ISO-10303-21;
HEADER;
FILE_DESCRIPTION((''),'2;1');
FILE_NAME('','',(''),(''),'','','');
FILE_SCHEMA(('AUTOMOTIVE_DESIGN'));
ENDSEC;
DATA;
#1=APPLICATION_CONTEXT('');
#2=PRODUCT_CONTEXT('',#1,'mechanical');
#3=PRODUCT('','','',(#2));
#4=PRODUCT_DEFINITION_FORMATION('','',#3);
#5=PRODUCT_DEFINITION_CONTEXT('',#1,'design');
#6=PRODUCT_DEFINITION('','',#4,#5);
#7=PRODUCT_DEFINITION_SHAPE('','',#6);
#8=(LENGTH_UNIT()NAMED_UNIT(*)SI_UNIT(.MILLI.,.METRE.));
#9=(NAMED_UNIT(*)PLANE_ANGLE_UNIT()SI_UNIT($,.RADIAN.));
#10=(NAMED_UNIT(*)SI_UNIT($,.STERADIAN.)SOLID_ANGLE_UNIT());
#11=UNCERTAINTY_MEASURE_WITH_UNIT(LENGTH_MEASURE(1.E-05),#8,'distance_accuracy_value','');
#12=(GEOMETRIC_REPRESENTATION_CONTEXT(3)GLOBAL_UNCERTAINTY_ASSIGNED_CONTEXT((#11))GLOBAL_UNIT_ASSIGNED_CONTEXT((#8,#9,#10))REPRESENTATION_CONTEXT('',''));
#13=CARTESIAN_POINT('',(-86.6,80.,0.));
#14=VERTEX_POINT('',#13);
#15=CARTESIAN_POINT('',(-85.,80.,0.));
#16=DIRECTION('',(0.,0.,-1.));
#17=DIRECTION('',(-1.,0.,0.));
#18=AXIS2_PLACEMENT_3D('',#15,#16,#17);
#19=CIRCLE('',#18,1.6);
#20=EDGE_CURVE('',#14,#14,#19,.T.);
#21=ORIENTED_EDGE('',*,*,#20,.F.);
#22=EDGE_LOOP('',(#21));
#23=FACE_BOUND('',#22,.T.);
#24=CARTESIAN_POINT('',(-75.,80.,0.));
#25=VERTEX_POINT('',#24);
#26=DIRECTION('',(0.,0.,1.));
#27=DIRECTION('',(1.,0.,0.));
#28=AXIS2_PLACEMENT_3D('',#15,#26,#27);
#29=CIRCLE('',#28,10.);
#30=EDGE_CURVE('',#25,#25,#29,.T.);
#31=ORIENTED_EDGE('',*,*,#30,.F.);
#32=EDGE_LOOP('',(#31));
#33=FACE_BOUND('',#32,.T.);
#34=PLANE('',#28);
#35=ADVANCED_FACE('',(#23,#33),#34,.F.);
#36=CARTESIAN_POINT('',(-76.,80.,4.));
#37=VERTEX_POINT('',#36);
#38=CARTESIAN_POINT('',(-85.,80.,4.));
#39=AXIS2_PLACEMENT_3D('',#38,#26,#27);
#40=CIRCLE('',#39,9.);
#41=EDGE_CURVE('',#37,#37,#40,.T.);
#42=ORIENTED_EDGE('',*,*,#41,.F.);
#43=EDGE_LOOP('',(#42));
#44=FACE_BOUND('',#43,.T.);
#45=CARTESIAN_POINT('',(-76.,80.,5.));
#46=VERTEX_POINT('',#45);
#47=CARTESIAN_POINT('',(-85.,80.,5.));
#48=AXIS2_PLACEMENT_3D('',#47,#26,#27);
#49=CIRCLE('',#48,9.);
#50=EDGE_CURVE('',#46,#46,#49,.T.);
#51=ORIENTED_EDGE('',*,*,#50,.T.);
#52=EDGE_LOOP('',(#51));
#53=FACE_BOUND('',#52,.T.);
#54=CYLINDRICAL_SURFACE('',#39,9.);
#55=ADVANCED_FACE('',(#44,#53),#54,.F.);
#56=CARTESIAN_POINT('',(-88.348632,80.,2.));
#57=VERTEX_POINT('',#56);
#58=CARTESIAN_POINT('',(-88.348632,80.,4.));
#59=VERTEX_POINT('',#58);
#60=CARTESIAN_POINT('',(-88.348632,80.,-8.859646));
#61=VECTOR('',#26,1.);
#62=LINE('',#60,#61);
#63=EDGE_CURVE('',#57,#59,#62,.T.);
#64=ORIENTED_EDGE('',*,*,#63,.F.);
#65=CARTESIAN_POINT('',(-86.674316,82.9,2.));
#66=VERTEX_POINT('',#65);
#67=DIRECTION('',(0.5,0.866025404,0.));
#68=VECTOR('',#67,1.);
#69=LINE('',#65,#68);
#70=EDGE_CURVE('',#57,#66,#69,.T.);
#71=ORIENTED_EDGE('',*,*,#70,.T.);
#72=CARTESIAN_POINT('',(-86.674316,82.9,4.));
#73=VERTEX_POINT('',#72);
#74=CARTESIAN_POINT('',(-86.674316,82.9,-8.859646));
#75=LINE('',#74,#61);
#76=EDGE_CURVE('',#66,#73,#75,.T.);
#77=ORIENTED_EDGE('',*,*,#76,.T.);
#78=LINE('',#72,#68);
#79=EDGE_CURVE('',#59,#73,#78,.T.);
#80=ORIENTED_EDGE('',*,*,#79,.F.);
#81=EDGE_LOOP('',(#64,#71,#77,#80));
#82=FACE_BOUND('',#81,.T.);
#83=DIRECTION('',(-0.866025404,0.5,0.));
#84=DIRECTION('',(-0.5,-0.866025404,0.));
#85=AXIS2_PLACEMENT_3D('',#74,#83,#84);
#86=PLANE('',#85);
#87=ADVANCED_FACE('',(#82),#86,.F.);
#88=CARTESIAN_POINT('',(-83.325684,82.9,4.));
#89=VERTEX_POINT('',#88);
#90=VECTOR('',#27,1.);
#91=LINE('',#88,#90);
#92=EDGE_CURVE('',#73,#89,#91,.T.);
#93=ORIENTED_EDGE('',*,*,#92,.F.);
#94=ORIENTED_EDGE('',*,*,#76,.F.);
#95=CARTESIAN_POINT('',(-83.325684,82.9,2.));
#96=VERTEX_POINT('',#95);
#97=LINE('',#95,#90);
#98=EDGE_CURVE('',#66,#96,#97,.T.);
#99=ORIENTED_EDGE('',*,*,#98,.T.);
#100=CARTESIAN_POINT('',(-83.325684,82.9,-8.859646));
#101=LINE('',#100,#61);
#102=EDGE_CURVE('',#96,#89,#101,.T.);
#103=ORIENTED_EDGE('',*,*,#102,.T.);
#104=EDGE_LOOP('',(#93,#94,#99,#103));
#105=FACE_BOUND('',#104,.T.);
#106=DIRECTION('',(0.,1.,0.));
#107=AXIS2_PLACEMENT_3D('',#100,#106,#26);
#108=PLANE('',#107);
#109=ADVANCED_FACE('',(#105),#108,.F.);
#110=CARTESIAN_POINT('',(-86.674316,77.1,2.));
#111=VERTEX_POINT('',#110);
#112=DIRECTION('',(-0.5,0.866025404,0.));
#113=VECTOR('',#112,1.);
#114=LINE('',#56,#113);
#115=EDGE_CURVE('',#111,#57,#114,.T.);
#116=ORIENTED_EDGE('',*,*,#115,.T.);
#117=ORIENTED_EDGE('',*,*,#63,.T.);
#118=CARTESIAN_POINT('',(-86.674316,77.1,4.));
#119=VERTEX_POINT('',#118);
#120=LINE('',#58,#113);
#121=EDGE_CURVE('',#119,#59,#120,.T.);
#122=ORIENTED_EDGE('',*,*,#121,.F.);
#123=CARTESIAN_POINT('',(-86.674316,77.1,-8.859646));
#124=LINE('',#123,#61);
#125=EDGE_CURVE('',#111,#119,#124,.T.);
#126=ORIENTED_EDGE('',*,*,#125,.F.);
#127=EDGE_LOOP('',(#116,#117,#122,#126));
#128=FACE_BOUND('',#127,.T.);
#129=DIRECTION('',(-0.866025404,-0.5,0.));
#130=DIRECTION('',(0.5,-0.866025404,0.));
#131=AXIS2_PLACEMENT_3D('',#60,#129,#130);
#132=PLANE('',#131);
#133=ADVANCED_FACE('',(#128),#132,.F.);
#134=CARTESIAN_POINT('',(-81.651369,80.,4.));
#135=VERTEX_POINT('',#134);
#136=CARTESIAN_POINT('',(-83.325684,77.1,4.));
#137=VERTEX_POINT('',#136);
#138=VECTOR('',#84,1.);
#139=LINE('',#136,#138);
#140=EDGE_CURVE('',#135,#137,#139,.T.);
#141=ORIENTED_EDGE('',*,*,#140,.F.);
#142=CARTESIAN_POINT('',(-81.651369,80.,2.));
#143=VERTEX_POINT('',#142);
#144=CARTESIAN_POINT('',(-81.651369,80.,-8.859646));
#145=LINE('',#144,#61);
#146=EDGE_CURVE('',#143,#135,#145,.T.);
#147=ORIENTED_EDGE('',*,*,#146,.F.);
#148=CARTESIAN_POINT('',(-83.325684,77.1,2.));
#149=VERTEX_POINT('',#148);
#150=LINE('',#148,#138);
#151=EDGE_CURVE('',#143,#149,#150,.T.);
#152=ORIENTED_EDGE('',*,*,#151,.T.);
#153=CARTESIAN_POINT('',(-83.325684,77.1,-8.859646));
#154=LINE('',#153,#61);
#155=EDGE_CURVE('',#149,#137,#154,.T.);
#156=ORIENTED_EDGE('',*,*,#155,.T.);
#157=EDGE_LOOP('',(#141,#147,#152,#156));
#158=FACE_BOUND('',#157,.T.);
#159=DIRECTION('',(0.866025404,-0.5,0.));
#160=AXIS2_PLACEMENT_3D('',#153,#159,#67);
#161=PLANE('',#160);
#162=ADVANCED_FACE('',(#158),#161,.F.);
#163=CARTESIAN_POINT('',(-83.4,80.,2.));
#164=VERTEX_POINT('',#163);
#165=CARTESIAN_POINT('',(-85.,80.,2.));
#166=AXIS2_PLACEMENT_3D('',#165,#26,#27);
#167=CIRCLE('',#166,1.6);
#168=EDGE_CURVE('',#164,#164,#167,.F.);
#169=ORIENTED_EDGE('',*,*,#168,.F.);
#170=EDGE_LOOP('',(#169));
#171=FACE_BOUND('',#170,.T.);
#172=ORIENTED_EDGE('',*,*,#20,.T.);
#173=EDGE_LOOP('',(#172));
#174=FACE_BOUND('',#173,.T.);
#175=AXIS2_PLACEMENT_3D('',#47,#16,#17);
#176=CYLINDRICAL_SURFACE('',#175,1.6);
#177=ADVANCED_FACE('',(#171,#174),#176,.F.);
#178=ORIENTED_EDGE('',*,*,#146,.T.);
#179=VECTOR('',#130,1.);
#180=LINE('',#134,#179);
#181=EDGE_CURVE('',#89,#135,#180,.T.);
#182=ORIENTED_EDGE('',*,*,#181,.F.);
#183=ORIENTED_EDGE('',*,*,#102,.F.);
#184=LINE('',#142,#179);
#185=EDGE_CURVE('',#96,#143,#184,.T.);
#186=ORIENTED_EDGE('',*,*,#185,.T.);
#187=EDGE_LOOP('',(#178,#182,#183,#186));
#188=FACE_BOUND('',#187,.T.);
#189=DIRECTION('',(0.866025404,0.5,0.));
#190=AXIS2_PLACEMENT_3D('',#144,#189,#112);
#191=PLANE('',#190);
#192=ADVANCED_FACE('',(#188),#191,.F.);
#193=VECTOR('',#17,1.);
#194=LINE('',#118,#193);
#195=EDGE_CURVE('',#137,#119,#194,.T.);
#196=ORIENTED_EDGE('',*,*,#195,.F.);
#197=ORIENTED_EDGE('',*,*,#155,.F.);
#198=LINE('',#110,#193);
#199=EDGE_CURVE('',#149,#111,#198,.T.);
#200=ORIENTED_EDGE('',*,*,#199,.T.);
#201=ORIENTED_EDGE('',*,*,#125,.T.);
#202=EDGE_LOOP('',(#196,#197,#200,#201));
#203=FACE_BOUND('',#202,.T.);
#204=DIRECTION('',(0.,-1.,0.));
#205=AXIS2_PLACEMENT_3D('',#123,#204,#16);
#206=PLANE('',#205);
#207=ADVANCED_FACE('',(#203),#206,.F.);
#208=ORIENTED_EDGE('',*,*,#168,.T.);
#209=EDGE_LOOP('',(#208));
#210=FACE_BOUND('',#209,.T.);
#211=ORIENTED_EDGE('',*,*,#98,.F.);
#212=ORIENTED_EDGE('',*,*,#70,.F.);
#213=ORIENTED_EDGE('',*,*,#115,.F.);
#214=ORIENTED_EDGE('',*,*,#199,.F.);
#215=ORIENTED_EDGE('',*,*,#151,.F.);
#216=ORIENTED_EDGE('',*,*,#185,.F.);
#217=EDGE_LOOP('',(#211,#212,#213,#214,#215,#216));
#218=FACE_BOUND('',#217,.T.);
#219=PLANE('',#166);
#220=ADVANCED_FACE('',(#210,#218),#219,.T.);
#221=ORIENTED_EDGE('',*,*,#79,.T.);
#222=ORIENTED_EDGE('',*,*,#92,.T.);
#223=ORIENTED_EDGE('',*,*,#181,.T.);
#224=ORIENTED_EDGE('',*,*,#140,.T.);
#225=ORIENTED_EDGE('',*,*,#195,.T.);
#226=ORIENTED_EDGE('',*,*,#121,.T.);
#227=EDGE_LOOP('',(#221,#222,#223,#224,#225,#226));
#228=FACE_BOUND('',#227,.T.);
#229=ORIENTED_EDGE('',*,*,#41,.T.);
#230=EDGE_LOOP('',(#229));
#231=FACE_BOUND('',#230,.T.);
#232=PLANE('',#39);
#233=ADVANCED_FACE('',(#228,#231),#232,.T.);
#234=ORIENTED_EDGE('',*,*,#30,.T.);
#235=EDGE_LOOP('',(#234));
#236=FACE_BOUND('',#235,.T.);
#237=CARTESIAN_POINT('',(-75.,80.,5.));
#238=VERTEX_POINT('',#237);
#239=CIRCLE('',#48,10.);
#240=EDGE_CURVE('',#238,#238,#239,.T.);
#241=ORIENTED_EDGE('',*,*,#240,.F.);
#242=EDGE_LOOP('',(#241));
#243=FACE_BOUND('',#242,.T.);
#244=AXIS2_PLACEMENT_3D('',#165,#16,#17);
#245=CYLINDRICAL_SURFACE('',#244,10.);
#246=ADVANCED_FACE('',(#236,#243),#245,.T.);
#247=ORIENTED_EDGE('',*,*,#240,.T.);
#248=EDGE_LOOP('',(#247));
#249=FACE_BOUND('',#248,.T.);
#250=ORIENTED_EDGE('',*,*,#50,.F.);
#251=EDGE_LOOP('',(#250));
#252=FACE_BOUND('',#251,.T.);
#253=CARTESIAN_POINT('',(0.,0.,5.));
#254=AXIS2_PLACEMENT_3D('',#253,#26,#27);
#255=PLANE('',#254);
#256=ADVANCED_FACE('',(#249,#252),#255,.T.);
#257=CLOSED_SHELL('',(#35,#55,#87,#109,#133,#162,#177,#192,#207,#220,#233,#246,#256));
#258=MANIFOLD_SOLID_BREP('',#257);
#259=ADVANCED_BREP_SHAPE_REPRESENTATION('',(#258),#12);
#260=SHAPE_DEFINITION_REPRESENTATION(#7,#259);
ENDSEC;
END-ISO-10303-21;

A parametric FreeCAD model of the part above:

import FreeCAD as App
import Part
import Sketcher
Q = App.Units.Quantity

doc = App.newDocument("Part")
body = doc.addObject("PartDesign::Body", "Body")

sketch1 = doc.addObject("Sketcher::SketchObject", "Sketch")
body.addObject(sketch1)
sketch1.AttachmentSupport = (doc.XY_Plane, [""])
sketch1.MapMode = "FlatFace"
sketch1.addGeometry([
    Part.Circle(App.Vector(-85, 80, 0), App.Vector(0, 0, 1), 10),
    Part.Circle(App.Vector(-85, 80, 0), App.Vector(0, 0, 1), 1.5),
], False)
sketch1.addConstraint([
    Sketcher.Constraint("Coincident", 1, 3, 0, 3),
    Sketcher.Constraint("Diameter", 0, Q("20 mm")),
    Sketcher.Constraint("Diameter", 1, Q("3 mm")),
    Sketcher.Constraint("DistanceX", 0, 3, -1, 1, Q("85 mm")),
    Sketcher.Constraint("DistanceY", -1, 1, 0, 3, Q("80 mm")),
])
pad1 = doc.addObject("PartDesign::Pad", "Pad")
body.addObject(pad1)
pad1.Profile = sketch1
pad1.Length = 2

sketch2 = doc.addObject("Sketcher::SketchObject", "Sketch001")
body.addObject(sketch2)
sketch2.AttachmentSupport = (doc.XY_Plane, [""])
sketch2.MapMode = "FlatFace"
sketch2.AttachmentOffset = App.Placement(App.Vector(0, 0, 2), App.Rotation())
sketch2.addGeometry(Part.Circle(App.Vector(-85, 80, 0), App.Vector(0, 0, 1), 10), False)
sketch2.addConstraint([
    Sketcher.Constraint("Diameter", 0, Q("20 mm")),
    Sketcher.Constraint("DistanceX", 0, 3, -1, 1, Q("85 mm")),
    Sketcher.Constraint("DistanceY", -1, 1, 0, 3, Q("80 mm")),
])
pad2 = doc.addObject("PartDesign::Pad", "Pad001")
body.addObject(pad2)
pad2.Profile = sketch2
pad2.Length = 3

sketch3 = doc.addObject("Sketcher::SketchObject", "Sketch002")
body.addObject(sketch3)
sketch3.AttachmentSupport = (doc.XY_Plane, [""])
sketch3.MapMode = "FlatFace"
sketch3.addGeometry(Part.Circle(App.Vector(-85, 80, 0), App.Vector(0, 0, 1), 1.6), False)
sketch3.addConstraint([
    Sketcher.Constraint("Diameter", 0, Q("3.2 mm")),
    Sketcher.Constraint("DistanceX", 0, 3, -1, 1, Q("85 mm")),
    Sketcher.Constraint("DistanceY", -1, 1, 0, 3, Q("80 mm")),
])
pocket1 = doc.addObject("PartDesign::Pocket", "Pocket")
body.addObject(pocket1)
pocket1.Profile = sketch3
pocket1.Type = "ThroughAll"
pocket1.Reversed = True

sketch4 = doc.addObject("Sketcher::SketchObject", "Sketch003")
body.addObject(sketch4)
sketch4.AttachmentSupport = (doc.XY_Plane, [""])
sketch4.MapMode = "FlatFace"
sketch4.AttachmentOffset = App.Placement(App.Vector(0, 0, 5), App.Rotation())
sketch4.addGeometry([
    Part.LineSegment(App.Vector(-88.3, 80, 0), App.Vector(-86.7, 77.1, 0)),
    Part.LineSegment(App.Vector(-86.7, 77.1, 0), App.Vector(-83.3, 77.1, 0)),
    Part.LineSegment(App.Vector(-83.3, 77.1, 0), App.Vector(-81.7, 80, 0)),
    Part.LineSegment(App.Vector(-81.7, 80, 0), App.Vector(-83.3, 82.9, 0)),
    Part.LineSegment(App.Vector(-83.3, 82.9, 0), App.Vector(-86.7, 82.9, 0)),
    Part.LineSegment(App.Vector(-86.7, 82.9, 0), App.Vector(-88.3, 80, 0)),
], False)
sketch4.addConstraint([
    Sketcher.Constraint("Coincident", 0, 2, 1, 1),
    Sketcher.Constraint("Coincident", 1, 2, 2, 1),
    Sketcher.Constraint("Coincident", 2, 2, 3, 1),
    Sketcher.Constraint("Coincident", 3, 2, 4, 1),
    Sketcher.Constraint("Coincident", 4, 2, 5, 1),
    Sketcher.Constraint("Coincident", 5, 2, 0, 1),
    Sketcher.Constraint("Horizontal", 1),
    Sketcher.Constraint("Horizontal", 4),
    Sketcher.Constraint("Parallel", 0, 3),
    Sketcher.Constraint("Parallel", 2, 5),
    Sketcher.Constraint("Horizontal", 2, 2, 5, 2),
    Sketcher.Constraint("Vertical", 1, 2, 3, 2),
    Sketcher.Constraint("Vertical", 0, 2, 4, 2),
    Sketcher.Constraint("Angle", 0, Q("-60 deg")),
    Sketcher.Constraint("DistanceY", -1, 1, 2, 2, Q("80 mm")),
    Sketcher.Constraint("DistanceY", -1, 1, 0, 2, Q("77.1 mm")),
    Sketcher.Constraint("DistanceX", 1, 1, 1, 2, Q("3.348632 mm")),
    Sketcher.Constraint("DistanceX", 2, 2, -1, 1, Q("81.651369 mm")),
])
pocket2 = doc.addObject("PartDesign::Pocket", "Pocket001")
body.addObject(pocket2)
pocket2.Profile = sketch4
pocket2.Length = 3

sketch5 = doc.addObject("Sketcher::SketchObject", "Sketch004")
body.addObject(sketch5)
sketch5.AttachmentSupport = (doc.XY_Plane, [""])
sketch5.MapMode = "FlatFace"
sketch5.AttachmentOffset = App.Placement(App.Vector(0, 0, 5), App.Rotation())
sketch5.addGeometry(Part.Circle(App.Vector(-85, 80, 0), App.Vector(0, 0, 1), 9), False)
sketch5.addConstraint([
    Sketcher.Constraint("Diameter", 0, Q("18 mm")),
    Sketcher.Constraint("DistanceX", 0, 3, -1, 1, Q("85 mm")),
    Sketcher.Constraint("DistanceY", -1, 1, 0, 3, Q("80 mm")),
])
pocket3 = doc.addObject("PartDesign::Pocket", "Pocket002")
body.addObject(pocket3)
pocket3.Profile = sketch5
pocket3.Length = 1

doc.recompute()
